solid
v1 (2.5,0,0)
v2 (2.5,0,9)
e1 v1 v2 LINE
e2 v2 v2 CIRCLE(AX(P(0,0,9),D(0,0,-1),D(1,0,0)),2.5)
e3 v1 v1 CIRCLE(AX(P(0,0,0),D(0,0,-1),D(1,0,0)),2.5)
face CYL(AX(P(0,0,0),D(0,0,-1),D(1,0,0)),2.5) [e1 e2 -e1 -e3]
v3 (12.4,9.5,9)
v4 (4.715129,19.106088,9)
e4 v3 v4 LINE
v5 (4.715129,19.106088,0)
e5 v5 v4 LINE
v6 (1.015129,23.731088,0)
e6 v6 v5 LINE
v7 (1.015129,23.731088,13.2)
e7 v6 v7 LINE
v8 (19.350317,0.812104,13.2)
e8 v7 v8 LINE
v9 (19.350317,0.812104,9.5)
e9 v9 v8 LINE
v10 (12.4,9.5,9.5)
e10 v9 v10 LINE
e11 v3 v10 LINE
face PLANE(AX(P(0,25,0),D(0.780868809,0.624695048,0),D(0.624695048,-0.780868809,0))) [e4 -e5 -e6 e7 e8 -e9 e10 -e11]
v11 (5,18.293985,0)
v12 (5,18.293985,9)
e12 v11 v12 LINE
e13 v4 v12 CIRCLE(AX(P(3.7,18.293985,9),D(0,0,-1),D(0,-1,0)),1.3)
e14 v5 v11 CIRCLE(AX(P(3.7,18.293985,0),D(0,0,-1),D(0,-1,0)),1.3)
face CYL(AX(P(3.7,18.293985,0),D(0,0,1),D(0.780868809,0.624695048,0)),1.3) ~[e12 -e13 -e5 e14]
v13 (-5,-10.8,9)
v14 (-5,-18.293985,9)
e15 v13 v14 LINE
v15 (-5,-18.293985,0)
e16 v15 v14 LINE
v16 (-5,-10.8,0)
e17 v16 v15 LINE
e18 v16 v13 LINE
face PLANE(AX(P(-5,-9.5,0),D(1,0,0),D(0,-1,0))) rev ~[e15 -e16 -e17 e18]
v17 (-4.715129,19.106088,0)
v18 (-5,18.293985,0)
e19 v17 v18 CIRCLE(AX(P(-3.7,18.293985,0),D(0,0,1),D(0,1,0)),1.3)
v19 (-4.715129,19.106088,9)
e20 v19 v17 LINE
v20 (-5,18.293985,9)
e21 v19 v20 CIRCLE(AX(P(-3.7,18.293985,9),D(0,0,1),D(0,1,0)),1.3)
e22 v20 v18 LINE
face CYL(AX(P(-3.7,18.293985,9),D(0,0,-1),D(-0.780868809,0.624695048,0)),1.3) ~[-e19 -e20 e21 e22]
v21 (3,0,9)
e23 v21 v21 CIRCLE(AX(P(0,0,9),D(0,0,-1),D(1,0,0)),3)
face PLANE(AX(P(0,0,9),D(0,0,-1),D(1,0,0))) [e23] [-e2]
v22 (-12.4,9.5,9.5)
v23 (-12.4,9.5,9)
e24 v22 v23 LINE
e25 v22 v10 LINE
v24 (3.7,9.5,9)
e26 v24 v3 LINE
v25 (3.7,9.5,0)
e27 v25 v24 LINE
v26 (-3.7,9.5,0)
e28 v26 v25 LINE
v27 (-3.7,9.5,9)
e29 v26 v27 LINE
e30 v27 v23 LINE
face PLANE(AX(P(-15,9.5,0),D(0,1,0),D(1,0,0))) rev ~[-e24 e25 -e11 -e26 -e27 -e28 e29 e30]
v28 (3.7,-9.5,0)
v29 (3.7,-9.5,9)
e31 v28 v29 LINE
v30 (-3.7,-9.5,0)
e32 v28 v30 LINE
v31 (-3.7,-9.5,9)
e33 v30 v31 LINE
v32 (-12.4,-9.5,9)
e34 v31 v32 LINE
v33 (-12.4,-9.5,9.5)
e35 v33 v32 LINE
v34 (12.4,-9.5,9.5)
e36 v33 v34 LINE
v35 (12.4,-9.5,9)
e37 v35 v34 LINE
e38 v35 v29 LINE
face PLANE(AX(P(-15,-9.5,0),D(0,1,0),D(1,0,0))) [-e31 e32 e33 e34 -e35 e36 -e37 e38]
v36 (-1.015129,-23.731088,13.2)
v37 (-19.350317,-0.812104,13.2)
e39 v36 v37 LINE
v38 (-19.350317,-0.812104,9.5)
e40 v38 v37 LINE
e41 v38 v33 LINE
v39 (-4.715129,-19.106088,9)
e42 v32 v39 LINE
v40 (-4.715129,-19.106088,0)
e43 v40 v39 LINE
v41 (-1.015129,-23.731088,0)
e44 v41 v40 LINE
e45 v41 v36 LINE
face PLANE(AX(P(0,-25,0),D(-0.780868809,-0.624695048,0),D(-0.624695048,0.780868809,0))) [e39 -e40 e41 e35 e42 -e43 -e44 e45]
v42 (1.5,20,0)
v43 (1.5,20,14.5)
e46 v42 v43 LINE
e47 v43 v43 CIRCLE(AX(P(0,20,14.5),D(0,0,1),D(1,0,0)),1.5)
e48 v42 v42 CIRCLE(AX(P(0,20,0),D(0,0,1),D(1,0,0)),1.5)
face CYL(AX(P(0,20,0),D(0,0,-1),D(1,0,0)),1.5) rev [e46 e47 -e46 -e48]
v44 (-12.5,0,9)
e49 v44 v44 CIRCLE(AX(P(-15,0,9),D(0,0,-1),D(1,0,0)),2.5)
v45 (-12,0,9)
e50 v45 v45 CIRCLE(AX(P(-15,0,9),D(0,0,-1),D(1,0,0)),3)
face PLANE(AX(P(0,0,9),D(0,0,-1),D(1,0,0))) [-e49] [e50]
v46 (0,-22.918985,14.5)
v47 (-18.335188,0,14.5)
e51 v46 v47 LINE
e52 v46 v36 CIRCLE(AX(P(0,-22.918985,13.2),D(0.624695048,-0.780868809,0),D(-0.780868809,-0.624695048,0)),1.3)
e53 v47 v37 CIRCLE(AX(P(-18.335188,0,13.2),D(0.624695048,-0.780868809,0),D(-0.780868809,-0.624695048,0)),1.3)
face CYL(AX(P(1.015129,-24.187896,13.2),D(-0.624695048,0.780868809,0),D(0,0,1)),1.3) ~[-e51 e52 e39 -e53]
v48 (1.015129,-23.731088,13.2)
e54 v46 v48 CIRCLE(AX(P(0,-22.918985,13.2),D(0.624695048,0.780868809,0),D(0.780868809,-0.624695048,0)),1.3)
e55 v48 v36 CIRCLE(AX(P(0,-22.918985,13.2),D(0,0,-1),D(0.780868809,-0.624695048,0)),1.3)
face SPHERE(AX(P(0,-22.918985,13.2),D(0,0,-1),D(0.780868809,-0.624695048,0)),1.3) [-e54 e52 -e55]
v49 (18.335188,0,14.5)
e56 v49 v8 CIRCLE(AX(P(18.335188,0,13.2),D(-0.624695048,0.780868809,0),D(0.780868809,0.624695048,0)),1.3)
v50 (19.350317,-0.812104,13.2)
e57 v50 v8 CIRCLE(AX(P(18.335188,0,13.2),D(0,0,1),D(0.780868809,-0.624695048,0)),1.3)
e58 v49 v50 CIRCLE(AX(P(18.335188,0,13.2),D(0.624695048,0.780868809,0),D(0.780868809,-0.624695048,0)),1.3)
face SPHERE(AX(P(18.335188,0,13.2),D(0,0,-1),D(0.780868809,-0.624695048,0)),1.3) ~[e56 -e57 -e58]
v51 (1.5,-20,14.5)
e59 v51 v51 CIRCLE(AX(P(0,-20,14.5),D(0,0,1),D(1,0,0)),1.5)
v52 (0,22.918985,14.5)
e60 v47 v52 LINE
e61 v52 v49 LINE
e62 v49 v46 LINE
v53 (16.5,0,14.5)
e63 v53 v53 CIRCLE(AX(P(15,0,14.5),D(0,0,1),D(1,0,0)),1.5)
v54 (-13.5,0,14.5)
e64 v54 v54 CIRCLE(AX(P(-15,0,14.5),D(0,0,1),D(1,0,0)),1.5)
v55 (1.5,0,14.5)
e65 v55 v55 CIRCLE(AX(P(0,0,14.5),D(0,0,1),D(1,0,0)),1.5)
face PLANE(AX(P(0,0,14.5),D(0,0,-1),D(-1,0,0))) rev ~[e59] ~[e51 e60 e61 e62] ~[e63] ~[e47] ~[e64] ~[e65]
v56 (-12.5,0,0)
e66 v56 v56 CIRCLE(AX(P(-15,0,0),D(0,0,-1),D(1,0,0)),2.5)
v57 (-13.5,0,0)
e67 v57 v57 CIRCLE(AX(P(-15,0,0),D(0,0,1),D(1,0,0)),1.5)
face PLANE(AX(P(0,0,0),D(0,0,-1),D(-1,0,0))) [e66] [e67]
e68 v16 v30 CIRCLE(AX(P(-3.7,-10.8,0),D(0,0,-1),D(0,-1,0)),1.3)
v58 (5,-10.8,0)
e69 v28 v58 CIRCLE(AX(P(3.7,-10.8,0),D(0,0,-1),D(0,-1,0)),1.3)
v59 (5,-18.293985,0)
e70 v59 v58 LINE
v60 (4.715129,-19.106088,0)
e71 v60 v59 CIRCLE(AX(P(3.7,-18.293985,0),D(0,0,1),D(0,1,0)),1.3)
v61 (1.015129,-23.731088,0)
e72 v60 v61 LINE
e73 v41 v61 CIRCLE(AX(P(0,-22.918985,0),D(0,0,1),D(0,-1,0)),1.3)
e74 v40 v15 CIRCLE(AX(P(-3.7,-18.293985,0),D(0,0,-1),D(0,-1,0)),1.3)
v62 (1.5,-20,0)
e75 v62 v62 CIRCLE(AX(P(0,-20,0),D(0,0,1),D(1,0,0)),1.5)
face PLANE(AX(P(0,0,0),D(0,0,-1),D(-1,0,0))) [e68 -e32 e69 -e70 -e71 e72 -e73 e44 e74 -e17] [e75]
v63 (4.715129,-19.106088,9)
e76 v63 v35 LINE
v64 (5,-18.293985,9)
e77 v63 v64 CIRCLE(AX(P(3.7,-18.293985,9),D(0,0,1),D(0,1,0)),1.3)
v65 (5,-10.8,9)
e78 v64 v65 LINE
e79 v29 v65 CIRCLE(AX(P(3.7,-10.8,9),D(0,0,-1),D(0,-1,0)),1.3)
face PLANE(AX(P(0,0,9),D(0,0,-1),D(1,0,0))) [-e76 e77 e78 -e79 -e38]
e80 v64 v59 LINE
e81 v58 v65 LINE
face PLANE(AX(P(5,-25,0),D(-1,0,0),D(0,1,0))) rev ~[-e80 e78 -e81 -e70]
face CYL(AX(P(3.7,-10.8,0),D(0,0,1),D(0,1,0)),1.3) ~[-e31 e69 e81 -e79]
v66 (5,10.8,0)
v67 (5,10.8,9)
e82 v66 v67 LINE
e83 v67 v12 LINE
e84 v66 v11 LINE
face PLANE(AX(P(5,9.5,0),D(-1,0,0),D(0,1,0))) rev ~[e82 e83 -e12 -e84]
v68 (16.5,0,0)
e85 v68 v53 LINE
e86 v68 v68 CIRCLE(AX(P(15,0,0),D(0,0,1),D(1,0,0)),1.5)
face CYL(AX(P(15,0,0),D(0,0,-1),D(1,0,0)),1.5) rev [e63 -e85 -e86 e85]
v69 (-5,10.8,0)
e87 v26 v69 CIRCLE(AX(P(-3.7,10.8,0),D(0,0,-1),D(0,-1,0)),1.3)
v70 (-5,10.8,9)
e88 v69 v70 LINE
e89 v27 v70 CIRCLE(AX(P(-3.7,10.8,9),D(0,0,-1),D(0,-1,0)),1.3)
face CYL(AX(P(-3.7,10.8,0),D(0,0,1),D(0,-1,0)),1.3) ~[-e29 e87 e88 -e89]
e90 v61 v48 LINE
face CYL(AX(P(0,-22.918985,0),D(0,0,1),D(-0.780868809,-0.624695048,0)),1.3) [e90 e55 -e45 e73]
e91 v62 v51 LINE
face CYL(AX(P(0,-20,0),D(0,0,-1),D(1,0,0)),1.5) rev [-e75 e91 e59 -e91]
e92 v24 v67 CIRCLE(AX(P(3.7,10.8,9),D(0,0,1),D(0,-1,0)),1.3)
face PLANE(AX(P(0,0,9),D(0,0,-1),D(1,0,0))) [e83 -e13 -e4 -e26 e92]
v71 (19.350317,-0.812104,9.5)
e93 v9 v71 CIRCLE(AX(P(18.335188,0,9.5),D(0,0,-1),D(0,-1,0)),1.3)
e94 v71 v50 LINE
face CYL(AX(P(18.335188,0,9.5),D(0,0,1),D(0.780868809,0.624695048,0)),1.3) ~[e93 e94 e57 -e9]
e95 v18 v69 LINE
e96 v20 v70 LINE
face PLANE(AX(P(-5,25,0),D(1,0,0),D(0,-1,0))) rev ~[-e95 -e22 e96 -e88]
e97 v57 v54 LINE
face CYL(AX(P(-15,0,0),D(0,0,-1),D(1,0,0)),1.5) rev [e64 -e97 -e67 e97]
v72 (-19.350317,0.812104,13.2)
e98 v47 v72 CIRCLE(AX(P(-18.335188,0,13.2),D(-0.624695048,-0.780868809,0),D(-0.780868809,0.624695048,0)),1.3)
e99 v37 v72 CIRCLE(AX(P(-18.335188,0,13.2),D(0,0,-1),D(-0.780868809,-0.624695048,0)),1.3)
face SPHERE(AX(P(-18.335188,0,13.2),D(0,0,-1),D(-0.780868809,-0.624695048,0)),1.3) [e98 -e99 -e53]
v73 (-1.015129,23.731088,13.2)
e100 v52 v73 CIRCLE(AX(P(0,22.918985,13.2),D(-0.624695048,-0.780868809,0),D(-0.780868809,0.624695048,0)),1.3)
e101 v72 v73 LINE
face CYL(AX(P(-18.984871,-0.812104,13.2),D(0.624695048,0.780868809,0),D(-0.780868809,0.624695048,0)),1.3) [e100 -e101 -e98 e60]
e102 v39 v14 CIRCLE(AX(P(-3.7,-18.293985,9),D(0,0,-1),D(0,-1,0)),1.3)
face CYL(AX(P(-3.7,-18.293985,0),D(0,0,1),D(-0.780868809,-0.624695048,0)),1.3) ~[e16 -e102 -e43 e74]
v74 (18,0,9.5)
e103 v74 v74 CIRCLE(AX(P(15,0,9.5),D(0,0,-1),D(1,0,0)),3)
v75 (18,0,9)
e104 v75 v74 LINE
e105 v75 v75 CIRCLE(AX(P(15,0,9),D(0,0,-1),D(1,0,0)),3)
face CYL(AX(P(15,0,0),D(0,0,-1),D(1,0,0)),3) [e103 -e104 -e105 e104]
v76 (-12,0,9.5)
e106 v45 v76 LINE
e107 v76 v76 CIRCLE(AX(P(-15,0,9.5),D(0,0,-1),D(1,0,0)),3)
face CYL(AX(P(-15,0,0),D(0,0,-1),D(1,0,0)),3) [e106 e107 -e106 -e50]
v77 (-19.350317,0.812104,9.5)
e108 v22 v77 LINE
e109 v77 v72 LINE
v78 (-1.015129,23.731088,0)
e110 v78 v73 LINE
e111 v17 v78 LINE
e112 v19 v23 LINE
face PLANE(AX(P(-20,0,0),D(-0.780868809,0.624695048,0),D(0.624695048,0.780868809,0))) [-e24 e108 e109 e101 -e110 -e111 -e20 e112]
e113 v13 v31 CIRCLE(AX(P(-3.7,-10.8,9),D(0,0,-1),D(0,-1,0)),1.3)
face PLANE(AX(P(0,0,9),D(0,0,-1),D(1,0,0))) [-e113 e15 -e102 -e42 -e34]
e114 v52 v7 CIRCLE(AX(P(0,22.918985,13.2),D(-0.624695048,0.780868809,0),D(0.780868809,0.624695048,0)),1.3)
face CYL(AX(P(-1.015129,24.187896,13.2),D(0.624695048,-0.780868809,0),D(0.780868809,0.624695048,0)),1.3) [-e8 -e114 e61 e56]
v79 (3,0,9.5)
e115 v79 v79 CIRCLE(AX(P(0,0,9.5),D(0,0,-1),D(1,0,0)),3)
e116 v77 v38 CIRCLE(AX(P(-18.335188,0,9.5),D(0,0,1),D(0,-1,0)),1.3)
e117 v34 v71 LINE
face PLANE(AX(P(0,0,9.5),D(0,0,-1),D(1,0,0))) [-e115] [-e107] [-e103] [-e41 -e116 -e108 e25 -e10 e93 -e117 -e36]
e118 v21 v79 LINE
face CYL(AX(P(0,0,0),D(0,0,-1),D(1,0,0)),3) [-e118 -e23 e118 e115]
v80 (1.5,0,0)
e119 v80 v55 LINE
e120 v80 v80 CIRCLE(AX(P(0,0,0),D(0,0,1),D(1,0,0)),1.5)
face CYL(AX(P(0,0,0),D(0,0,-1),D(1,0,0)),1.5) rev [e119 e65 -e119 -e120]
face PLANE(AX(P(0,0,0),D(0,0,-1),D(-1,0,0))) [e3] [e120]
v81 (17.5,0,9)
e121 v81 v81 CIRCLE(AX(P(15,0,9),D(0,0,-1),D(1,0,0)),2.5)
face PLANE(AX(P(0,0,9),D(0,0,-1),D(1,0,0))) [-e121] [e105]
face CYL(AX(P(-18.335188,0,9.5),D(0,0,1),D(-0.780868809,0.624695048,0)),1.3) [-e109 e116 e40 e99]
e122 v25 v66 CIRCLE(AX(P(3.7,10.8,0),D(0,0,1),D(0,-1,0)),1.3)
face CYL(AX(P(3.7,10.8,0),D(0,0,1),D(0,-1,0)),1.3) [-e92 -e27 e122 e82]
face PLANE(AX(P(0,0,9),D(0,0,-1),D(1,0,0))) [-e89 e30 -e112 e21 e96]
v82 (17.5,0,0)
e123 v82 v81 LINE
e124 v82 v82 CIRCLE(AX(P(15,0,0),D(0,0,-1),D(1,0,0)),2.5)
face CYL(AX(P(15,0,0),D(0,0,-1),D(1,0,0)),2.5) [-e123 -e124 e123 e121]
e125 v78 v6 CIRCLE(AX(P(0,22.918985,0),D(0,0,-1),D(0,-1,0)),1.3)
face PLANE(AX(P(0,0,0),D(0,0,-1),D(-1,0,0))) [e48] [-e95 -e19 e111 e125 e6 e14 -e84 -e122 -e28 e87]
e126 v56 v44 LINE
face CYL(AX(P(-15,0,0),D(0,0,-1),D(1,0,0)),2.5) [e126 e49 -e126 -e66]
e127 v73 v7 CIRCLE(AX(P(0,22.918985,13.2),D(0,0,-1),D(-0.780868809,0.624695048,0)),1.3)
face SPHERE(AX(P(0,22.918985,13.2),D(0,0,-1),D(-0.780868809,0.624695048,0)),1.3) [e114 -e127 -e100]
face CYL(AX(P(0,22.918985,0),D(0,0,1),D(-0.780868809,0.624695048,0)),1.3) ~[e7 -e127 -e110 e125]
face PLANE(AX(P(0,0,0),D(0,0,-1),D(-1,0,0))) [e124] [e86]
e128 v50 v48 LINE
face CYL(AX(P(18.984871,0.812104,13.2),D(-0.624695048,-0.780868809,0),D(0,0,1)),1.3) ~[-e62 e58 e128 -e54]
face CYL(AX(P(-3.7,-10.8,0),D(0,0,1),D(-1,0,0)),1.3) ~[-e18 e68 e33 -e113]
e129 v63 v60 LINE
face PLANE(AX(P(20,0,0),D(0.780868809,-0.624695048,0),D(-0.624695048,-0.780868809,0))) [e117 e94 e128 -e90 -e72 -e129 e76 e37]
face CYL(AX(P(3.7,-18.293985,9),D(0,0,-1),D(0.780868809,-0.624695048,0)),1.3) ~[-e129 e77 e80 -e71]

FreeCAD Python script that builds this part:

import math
import FreeCAD as App
import Part
import Sketcher
from FreeCAD import Vector
Q = App.Units.Quantity


def edges_at(feature, points):
    """Names of the edges that pass closest to the given points."""
    edges = feature.Shape.Edges
    near = lambda p: min(range(len(edges)), key=lambda i: edges[i].distToShape(Part.Vertex(*p))[0])
    return sorted({f"Edge{near(p) + 1}" for p in points})


def add_polygon(sketch, points):
    """Adds a closed chain of lines whose ends are joined by coincident constraints."""
    first, n = sketch.GeometryCount, len(points)
    for a, b in zip(points, points[1:] + points[:1]):
        sketch.addGeometry(Part.LineSegment(App.Vector(*a, 0), App.Vector(*b, 0)), False)
    for i in range(n):
        sketch.addConstraint(Sketcher.Constraint("Coincident", first + i, 2, first + (i + 1) % n, 1))

doc = App.newDocument("Part")
body = doc.addObject("PartDesign::Body", "Body")

sketch1 = body.newObject("Sketcher::SketchObject", "Sketch")
sketch1.AttachmentSupport = (doc.getObject("XY_Plane"), [""])
sketch1.MapMode = "FlatFace"
add_polygon(sketch1, [(0, 25), (-20, 0), (0, -25), (20, 0)])
sketch1.addGeometry(Part.Circle(Vector(0, -20, 0), Vector(0, 0, 1), 1.5), False)
sketch1.addGeometry(Part.Circle(Vector(15, 0, 0), Vector(0, 0, 1), 1.5), False)
sketch1.addGeometry(Part.Circle(Vector(0, 0, 0), Vector(0, 0, 1), 1.5), False)
sketch1.addGeometry(Part.Circle(Vector(-15, 0, 0), Vector(0, 0, 1), 1.5), False)
sketch1.addGeometry(Part.Circle(Vector(0, 20, 0), Vector(0, 0, 1), 1.5), False)
sketch1.addConstraint(Sketcher.Constraint("Coincident", 6, 3, -1, 1))
sketch1.addConstraint(Sketcher.Constraint("Equal", 4, 5))
sketch1.addConstraint(Sketcher.Constraint("Equal", 5, 6))
sketch1.addConstraint(Sketcher.Constraint("Equal", 6, 7))
sketch1.addConstraint(Sketcher.Constraint("Equal", 7, 8))
sketch1.addConstraint(Sketcher.Constraint("Symmetric", 5, 3, 7, 3, -1, 1))
sketch1.addConstraint(Sketcher.Constraint("Symmetric", 4, 3, 8, 3, -1, 1))
sketch1.addConstraint(Sketcher.Constraint("Symmetric", 0, 2, 2, 2, -1, 1))
sketch1.addConstraint(Sketcher.Constraint("Symmetric", 1, 2, 3, 2, -1, 1))
sketch1.addConstraint(Sketcher.Constraint("PointOnObject", 4, 3, -2))
sketch1.addConstraint(Sketcher.Constraint("PointOnObject", 5, 3, -1))
sketch1.addConstraint(Sketcher.Constraint("PointOnObject", 0, 2, -1))
sketch1.addConstraint(Sketcher.Constraint("PointOnObject", 1, 2, -2))
sketch1.addConstraint(Sketcher.Constraint("Diameter", 4, Q("3 mm")))
sketch1.addConstraint(Sketcher.Constraint("DistanceY", 4, 3, -1, 1, Q("20 mm")))
sketch1.addConstraint(Sketcher.Constraint("DistanceX", -1, 1, 5, 3, Q("15 mm")))
sketch1.addConstraint(Sketcher.Constraint("DistanceX", 0, 2, -1, 1, Q("20 mm")))
sketch1.addConstraint(Sketcher.Constraint("DistanceY", 1, 2, -1, 1, Q("25 mm")))
pad1 = body.newObject("PartDesign::Pad", "Pad")
pad1.Profile = sketch1
pad1.Length = 14.5

sketch2 = body.newObject("Sketcher::SketchObject", "Sketch001")
sketch2.AttachmentSupport = (doc.getObject("XY_Plane"), [""])
sketch2.MapMode = "FlatFace"
sketch2.addGeometry(Part.ArcOfCircle(Part.Circle(Vector(-15, 0, 0), Vector(0, 0, 1), 9.5), math.radians(90), math.radians(270)), False)
sketch2.addGeometry(Part.LineSegment(Vector(-15, 9.5, 0), Vector(15, 9.5, 0)), False)
sketch2.addGeometry(Part.ArcOfCircle(Part.Circle(Vector(15, 0, 0), Vector(0, 0, 1), 9.5), math.radians(-90), math.radians(90)), False)
sketch2.addGeometry(Part.LineSegment(Vector(15, -9.5, 0), Vector(-15, -9.5, 0)), False)
sketch2.addGeometry(Part.Circle(Vector(-15, 0, 0), Vector(0, 0, 1), 3), False)
sketch2.addGeometry(Part.Circle(Vector(0, 0, 0), Vector(0, 0, 1), 3), False)
sketch2.addGeometry(Part.Circle(Vector(15, 0, 0), Vector(0, 0, 1), 3), False)
sketch2.addConstraint(Sketcher.Constraint("Tangent", 0, 1, 1, 1))
sketch2.addConstraint(Sketcher.Constraint("Tangent", 1, 2, 2, 2))
sketch2.addConstraint(Sketcher.Constraint("Tangent", 2, 1, 3, 1))
sketch2.addConstraint(Sketcher.Constraint("Tangent", 3, 2, 0, 2))
sketch2.addConstraint(Sketcher.Constraint("Horizontal", 1))
sketch2.addConstraint(Sketcher.Constraint("Horizontal", 3))
sketch2.addConstraint(Sketcher.Constraint("Coincident", 5, 3, -1, 1))
sketch2.addConstraint(Sketcher.Constraint("Coincident", 4, 3, 0, 3))
sketch2.addConstraint(Sketcher.Constraint("Coincident", 6, 3, 2, 3))
sketch2.addConstraint(Sketcher.Constraint("Equal", 4, 5))
sketch2.addConstraint(Sketcher.Constraint("Equal", 5, 6))
sketch2.addConstraint(Sketcher.Constraint("Symmetric", 0, 3, 2, 3, -1, 1))
sketch2.addConstraint(Sketcher.Constraint("Diameter", 4, Q("6 mm")))
sketch2.addConstraint(Sketcher.Constraint("Radius", 0, Q("9.5 mm")))
sketch2.addConstraint(Sketcher.Constraint("DistanceX", 1, 1, 1, 2, Q("30 mm")))
pocket1 = body.newObject("PartDesign::Pocket", "Pocket")
pocket1.Profile = sketch2
pocket1.Length = 9.5
pocket1.Reversed = True

sketch3 = body.newObject("Sketcher::SketchObject", "Sketch002")
sketch3.AttachmentSupport = (doc.getObject("XY_Plane"), [""])
sketch3.MapMode = "FlatFace"
add_polygon(sketch3, [(-20, -25), (-20, 25), (-5, 25), (-5, 9.5), (5, 9.5), (5, 25), (20, 25), (20, -25), (5, -25), (5, -9.5), (-5, -9.5), (-5, -25)])
sketch3.addGeometry(Part.Circle(Vector(-15, 0, 0), Vector(0, 0, 1), 2.5), False)
sketch3.addGeometry(Part.Circle(Vector(0, 0, 0), Vector(0, 0, 1), 2.5), False)
sketch3.addGeometry(Part.Circle(Vector(15, 0, 0), Vector(0, 0, 1), 2.5), False)
sketch3.addConstraint(Sketcher.Constraint("Vertical", 0))
sketch3.addConstraint(Sketcher.Constraint("Horizontal", 1))
sketch3.addConstraint(Sketcher.Constraint("Vertical", 2))
sketch3.addConstraint(Sketcher.Constraint("Horizontal", 3))
sketch3.addConstraint(Sketcher.Constraint("Vertical", 4))
sketch3.addConstraint(Sketcher.Constraint("Horizontal", 5))
sketch3.addConstraint(Sketcher.Constraint("Vertical", 6))
sketch3.addConstraint(Sketcher.Constraint("Horizontal", 7))
sketch3.addConstraint(Sketcher.Constraint("Vertical", 8))
sketch3.addConstraint(Sketcher.Constraint("Horizontal", 9))
sketch3.addConstraint(Sketcher.Constraint("Vertical", 10))
sketch3.addConstraint(Sketcher.Constraint("Horizontal", 11))
sketch3.addConstraint(Sketcher.Constraint("Coincident", 13, 3, -1, 1))
sketch3.addConstraint(Sketcher.Constraint("Equal", 12, 13))
sketch3.addConstraint(Sketcher.Constraint("Equal", 13, 14))
sketch3.addConstraint(Sketcher.Constraint("Symmetric", 12, 3, 14, 3, -1, 1))
sketch3.addConstraint(Sketcher.Constraint("Symmetric", 0, 2, 6, 2, -1, 1))
sketch3.addConstraint(Sketcher.Constraint("Symmetric", 2, 2, 8, 2, -1, 1))
sketch3.addConstraint(Sketcher.Constraint("Symmetric", 4, 2, 10, 2, -1, 1))
sketch3.addConstraint(Sketcher.Constraint("Symmetric", 1, 2, 4, 2, -2))
sketch3.addConstraint(Sketcher.Constraint("PointOnObject", 12, 3, -1))
sketch3.addConstraint(Sketcher.Constraint("Diameter", 12, Q("5 mm")))
sketch3.addConstraint(Sketcher.Constraint("DistanceX", 1, 1, 1, 2, Q("15 mm")))
sketch3.addConstraint(Sketcher.Constraint("DistanceX", 3, 1, 3, 2, Q("10 mm")))
sketch3.addConstraint(Sketcher.Constraint("DistanceY", 0, 1, 0, 2, Q("50 mm")))
sketch3.addConstraint(Sketcher.Constraint("DistanceY", 2, 2, 2, 1, Q("15.5 mm")))
sketch3.addConstraint(Sketcher.Constraint("DistanceX", 12, 3, -1, 1, Q("15 mm")))
pocket2 = body.newObject("PartDesign::Pocket", "Pocket001")
pocket2.Profile = sketch3
pocket2.Length = 9
pocket2.Reversed = True
doc.recompute()

fillet = body.newObject("PartDesign::Fillet", "Fillet")
fillet.Base = (pocket2, edges_at(pocket2, [
    (10, -12.5, 14.5),
    (-10, -12.5, 14.5),
    (-10, 12.5, 14.5),
    (10, 12.5, 14.5),
    (0, -25, 7.25),
    (5, -18.75, 4.5),
    (-5, -18.75, 4.5),
    (20, 0, 12),
    (-20, 0, 12),
    (-5, 18.75, 4.5),
    (0, 25, 7.25),
    (5, 18.75, 4.5),
    (-5, -9.5, 4.5),
    (5, -9.5, 4.5),
    (5, 9.5, 4.5),
    (-5, 9.5, 4.5),
]))
fillet.Radius = 1.3

doc.recompute()
